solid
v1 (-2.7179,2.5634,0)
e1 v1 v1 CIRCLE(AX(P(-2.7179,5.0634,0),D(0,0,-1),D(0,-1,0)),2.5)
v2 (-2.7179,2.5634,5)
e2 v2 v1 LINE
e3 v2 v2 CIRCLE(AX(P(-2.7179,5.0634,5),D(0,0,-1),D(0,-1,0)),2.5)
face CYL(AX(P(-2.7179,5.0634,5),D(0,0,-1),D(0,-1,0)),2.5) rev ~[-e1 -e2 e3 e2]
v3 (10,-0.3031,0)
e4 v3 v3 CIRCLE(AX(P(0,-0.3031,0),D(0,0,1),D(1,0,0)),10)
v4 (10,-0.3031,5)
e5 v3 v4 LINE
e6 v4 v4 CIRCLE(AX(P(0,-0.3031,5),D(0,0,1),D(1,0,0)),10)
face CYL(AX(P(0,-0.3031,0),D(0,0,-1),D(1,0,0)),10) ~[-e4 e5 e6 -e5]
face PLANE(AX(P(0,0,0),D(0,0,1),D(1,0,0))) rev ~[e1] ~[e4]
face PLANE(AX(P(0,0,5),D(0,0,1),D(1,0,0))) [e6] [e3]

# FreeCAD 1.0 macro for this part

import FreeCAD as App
import Part
import Sketcher
from FreeCAD import Vector

doc = App.newDocument("Part")
body = doc.addObject("PartDesign::Body", "Body")

sketch1 = doc.addObject("Sketcher::SketchObject", "Sketch")
body.addObject(sketch1)
sketch1.AttachmentSupport = (doc.XY_Plane, [""])
sketch1.MapMode = "FlatFace"
sketch1.addGeometry(Part.Circle(Vector(0, -0.3031, 0), Vector(0, 0, 1), 10), False)
sketch1.addConstraint(Sketcher.Constraint("PointOnObject", 0, 3, -2))
sketch1.addConstraint(Sketcher.Constraint("Diameter", 0, 20.0))
sketch1.addConstraint(Sketcher.Constraint("DistanceY", 0, 3, -1, 1, 0.303))
pad1 = doc.addObject("PartDesign::Pad", "Pad")
body.addObject(pad1)
pad1.Profile = sketch1
pad1.Length = 5

sketch2 = doc.addObject("Sketcher::SketchObject", "Sketch001")
body.addObject(sketch2)
sketch2.AttachmentSupport = (doc.XY_Plane, [""])
sketch2.MapMode = "FlatFace"
sketch2.AttachmentOffset = App.Placement(Vector(0, 0, 5), App.Rotation())
sketch2.addGeometry(Part.Circle(Vector(-2.7179, 5.0634, 0), Vector(0, 0, 1), 2.5), False)
sketch2.addConstraint(Sketcher.Constraint("Diameter", 0, 5.0))
sketch2.addConstraint(Sketcher.Constraint("DistanceX", 0, 3, -1, 1, 2.718))
sketch2.addConstraint(Sketcher.Constraint("DistanceY", -1, 1, 0, 3, 5.0634))
doc.recompute()
hole = doc.addObject("PartDesign::Hole", "Hole")
body.addObject(hole)
hole.Profile = sketch2
hole.ThreadType = "None"
hole.Diameter = 5
hole.DepthType = "ThroughAll"

doc.recompute()
